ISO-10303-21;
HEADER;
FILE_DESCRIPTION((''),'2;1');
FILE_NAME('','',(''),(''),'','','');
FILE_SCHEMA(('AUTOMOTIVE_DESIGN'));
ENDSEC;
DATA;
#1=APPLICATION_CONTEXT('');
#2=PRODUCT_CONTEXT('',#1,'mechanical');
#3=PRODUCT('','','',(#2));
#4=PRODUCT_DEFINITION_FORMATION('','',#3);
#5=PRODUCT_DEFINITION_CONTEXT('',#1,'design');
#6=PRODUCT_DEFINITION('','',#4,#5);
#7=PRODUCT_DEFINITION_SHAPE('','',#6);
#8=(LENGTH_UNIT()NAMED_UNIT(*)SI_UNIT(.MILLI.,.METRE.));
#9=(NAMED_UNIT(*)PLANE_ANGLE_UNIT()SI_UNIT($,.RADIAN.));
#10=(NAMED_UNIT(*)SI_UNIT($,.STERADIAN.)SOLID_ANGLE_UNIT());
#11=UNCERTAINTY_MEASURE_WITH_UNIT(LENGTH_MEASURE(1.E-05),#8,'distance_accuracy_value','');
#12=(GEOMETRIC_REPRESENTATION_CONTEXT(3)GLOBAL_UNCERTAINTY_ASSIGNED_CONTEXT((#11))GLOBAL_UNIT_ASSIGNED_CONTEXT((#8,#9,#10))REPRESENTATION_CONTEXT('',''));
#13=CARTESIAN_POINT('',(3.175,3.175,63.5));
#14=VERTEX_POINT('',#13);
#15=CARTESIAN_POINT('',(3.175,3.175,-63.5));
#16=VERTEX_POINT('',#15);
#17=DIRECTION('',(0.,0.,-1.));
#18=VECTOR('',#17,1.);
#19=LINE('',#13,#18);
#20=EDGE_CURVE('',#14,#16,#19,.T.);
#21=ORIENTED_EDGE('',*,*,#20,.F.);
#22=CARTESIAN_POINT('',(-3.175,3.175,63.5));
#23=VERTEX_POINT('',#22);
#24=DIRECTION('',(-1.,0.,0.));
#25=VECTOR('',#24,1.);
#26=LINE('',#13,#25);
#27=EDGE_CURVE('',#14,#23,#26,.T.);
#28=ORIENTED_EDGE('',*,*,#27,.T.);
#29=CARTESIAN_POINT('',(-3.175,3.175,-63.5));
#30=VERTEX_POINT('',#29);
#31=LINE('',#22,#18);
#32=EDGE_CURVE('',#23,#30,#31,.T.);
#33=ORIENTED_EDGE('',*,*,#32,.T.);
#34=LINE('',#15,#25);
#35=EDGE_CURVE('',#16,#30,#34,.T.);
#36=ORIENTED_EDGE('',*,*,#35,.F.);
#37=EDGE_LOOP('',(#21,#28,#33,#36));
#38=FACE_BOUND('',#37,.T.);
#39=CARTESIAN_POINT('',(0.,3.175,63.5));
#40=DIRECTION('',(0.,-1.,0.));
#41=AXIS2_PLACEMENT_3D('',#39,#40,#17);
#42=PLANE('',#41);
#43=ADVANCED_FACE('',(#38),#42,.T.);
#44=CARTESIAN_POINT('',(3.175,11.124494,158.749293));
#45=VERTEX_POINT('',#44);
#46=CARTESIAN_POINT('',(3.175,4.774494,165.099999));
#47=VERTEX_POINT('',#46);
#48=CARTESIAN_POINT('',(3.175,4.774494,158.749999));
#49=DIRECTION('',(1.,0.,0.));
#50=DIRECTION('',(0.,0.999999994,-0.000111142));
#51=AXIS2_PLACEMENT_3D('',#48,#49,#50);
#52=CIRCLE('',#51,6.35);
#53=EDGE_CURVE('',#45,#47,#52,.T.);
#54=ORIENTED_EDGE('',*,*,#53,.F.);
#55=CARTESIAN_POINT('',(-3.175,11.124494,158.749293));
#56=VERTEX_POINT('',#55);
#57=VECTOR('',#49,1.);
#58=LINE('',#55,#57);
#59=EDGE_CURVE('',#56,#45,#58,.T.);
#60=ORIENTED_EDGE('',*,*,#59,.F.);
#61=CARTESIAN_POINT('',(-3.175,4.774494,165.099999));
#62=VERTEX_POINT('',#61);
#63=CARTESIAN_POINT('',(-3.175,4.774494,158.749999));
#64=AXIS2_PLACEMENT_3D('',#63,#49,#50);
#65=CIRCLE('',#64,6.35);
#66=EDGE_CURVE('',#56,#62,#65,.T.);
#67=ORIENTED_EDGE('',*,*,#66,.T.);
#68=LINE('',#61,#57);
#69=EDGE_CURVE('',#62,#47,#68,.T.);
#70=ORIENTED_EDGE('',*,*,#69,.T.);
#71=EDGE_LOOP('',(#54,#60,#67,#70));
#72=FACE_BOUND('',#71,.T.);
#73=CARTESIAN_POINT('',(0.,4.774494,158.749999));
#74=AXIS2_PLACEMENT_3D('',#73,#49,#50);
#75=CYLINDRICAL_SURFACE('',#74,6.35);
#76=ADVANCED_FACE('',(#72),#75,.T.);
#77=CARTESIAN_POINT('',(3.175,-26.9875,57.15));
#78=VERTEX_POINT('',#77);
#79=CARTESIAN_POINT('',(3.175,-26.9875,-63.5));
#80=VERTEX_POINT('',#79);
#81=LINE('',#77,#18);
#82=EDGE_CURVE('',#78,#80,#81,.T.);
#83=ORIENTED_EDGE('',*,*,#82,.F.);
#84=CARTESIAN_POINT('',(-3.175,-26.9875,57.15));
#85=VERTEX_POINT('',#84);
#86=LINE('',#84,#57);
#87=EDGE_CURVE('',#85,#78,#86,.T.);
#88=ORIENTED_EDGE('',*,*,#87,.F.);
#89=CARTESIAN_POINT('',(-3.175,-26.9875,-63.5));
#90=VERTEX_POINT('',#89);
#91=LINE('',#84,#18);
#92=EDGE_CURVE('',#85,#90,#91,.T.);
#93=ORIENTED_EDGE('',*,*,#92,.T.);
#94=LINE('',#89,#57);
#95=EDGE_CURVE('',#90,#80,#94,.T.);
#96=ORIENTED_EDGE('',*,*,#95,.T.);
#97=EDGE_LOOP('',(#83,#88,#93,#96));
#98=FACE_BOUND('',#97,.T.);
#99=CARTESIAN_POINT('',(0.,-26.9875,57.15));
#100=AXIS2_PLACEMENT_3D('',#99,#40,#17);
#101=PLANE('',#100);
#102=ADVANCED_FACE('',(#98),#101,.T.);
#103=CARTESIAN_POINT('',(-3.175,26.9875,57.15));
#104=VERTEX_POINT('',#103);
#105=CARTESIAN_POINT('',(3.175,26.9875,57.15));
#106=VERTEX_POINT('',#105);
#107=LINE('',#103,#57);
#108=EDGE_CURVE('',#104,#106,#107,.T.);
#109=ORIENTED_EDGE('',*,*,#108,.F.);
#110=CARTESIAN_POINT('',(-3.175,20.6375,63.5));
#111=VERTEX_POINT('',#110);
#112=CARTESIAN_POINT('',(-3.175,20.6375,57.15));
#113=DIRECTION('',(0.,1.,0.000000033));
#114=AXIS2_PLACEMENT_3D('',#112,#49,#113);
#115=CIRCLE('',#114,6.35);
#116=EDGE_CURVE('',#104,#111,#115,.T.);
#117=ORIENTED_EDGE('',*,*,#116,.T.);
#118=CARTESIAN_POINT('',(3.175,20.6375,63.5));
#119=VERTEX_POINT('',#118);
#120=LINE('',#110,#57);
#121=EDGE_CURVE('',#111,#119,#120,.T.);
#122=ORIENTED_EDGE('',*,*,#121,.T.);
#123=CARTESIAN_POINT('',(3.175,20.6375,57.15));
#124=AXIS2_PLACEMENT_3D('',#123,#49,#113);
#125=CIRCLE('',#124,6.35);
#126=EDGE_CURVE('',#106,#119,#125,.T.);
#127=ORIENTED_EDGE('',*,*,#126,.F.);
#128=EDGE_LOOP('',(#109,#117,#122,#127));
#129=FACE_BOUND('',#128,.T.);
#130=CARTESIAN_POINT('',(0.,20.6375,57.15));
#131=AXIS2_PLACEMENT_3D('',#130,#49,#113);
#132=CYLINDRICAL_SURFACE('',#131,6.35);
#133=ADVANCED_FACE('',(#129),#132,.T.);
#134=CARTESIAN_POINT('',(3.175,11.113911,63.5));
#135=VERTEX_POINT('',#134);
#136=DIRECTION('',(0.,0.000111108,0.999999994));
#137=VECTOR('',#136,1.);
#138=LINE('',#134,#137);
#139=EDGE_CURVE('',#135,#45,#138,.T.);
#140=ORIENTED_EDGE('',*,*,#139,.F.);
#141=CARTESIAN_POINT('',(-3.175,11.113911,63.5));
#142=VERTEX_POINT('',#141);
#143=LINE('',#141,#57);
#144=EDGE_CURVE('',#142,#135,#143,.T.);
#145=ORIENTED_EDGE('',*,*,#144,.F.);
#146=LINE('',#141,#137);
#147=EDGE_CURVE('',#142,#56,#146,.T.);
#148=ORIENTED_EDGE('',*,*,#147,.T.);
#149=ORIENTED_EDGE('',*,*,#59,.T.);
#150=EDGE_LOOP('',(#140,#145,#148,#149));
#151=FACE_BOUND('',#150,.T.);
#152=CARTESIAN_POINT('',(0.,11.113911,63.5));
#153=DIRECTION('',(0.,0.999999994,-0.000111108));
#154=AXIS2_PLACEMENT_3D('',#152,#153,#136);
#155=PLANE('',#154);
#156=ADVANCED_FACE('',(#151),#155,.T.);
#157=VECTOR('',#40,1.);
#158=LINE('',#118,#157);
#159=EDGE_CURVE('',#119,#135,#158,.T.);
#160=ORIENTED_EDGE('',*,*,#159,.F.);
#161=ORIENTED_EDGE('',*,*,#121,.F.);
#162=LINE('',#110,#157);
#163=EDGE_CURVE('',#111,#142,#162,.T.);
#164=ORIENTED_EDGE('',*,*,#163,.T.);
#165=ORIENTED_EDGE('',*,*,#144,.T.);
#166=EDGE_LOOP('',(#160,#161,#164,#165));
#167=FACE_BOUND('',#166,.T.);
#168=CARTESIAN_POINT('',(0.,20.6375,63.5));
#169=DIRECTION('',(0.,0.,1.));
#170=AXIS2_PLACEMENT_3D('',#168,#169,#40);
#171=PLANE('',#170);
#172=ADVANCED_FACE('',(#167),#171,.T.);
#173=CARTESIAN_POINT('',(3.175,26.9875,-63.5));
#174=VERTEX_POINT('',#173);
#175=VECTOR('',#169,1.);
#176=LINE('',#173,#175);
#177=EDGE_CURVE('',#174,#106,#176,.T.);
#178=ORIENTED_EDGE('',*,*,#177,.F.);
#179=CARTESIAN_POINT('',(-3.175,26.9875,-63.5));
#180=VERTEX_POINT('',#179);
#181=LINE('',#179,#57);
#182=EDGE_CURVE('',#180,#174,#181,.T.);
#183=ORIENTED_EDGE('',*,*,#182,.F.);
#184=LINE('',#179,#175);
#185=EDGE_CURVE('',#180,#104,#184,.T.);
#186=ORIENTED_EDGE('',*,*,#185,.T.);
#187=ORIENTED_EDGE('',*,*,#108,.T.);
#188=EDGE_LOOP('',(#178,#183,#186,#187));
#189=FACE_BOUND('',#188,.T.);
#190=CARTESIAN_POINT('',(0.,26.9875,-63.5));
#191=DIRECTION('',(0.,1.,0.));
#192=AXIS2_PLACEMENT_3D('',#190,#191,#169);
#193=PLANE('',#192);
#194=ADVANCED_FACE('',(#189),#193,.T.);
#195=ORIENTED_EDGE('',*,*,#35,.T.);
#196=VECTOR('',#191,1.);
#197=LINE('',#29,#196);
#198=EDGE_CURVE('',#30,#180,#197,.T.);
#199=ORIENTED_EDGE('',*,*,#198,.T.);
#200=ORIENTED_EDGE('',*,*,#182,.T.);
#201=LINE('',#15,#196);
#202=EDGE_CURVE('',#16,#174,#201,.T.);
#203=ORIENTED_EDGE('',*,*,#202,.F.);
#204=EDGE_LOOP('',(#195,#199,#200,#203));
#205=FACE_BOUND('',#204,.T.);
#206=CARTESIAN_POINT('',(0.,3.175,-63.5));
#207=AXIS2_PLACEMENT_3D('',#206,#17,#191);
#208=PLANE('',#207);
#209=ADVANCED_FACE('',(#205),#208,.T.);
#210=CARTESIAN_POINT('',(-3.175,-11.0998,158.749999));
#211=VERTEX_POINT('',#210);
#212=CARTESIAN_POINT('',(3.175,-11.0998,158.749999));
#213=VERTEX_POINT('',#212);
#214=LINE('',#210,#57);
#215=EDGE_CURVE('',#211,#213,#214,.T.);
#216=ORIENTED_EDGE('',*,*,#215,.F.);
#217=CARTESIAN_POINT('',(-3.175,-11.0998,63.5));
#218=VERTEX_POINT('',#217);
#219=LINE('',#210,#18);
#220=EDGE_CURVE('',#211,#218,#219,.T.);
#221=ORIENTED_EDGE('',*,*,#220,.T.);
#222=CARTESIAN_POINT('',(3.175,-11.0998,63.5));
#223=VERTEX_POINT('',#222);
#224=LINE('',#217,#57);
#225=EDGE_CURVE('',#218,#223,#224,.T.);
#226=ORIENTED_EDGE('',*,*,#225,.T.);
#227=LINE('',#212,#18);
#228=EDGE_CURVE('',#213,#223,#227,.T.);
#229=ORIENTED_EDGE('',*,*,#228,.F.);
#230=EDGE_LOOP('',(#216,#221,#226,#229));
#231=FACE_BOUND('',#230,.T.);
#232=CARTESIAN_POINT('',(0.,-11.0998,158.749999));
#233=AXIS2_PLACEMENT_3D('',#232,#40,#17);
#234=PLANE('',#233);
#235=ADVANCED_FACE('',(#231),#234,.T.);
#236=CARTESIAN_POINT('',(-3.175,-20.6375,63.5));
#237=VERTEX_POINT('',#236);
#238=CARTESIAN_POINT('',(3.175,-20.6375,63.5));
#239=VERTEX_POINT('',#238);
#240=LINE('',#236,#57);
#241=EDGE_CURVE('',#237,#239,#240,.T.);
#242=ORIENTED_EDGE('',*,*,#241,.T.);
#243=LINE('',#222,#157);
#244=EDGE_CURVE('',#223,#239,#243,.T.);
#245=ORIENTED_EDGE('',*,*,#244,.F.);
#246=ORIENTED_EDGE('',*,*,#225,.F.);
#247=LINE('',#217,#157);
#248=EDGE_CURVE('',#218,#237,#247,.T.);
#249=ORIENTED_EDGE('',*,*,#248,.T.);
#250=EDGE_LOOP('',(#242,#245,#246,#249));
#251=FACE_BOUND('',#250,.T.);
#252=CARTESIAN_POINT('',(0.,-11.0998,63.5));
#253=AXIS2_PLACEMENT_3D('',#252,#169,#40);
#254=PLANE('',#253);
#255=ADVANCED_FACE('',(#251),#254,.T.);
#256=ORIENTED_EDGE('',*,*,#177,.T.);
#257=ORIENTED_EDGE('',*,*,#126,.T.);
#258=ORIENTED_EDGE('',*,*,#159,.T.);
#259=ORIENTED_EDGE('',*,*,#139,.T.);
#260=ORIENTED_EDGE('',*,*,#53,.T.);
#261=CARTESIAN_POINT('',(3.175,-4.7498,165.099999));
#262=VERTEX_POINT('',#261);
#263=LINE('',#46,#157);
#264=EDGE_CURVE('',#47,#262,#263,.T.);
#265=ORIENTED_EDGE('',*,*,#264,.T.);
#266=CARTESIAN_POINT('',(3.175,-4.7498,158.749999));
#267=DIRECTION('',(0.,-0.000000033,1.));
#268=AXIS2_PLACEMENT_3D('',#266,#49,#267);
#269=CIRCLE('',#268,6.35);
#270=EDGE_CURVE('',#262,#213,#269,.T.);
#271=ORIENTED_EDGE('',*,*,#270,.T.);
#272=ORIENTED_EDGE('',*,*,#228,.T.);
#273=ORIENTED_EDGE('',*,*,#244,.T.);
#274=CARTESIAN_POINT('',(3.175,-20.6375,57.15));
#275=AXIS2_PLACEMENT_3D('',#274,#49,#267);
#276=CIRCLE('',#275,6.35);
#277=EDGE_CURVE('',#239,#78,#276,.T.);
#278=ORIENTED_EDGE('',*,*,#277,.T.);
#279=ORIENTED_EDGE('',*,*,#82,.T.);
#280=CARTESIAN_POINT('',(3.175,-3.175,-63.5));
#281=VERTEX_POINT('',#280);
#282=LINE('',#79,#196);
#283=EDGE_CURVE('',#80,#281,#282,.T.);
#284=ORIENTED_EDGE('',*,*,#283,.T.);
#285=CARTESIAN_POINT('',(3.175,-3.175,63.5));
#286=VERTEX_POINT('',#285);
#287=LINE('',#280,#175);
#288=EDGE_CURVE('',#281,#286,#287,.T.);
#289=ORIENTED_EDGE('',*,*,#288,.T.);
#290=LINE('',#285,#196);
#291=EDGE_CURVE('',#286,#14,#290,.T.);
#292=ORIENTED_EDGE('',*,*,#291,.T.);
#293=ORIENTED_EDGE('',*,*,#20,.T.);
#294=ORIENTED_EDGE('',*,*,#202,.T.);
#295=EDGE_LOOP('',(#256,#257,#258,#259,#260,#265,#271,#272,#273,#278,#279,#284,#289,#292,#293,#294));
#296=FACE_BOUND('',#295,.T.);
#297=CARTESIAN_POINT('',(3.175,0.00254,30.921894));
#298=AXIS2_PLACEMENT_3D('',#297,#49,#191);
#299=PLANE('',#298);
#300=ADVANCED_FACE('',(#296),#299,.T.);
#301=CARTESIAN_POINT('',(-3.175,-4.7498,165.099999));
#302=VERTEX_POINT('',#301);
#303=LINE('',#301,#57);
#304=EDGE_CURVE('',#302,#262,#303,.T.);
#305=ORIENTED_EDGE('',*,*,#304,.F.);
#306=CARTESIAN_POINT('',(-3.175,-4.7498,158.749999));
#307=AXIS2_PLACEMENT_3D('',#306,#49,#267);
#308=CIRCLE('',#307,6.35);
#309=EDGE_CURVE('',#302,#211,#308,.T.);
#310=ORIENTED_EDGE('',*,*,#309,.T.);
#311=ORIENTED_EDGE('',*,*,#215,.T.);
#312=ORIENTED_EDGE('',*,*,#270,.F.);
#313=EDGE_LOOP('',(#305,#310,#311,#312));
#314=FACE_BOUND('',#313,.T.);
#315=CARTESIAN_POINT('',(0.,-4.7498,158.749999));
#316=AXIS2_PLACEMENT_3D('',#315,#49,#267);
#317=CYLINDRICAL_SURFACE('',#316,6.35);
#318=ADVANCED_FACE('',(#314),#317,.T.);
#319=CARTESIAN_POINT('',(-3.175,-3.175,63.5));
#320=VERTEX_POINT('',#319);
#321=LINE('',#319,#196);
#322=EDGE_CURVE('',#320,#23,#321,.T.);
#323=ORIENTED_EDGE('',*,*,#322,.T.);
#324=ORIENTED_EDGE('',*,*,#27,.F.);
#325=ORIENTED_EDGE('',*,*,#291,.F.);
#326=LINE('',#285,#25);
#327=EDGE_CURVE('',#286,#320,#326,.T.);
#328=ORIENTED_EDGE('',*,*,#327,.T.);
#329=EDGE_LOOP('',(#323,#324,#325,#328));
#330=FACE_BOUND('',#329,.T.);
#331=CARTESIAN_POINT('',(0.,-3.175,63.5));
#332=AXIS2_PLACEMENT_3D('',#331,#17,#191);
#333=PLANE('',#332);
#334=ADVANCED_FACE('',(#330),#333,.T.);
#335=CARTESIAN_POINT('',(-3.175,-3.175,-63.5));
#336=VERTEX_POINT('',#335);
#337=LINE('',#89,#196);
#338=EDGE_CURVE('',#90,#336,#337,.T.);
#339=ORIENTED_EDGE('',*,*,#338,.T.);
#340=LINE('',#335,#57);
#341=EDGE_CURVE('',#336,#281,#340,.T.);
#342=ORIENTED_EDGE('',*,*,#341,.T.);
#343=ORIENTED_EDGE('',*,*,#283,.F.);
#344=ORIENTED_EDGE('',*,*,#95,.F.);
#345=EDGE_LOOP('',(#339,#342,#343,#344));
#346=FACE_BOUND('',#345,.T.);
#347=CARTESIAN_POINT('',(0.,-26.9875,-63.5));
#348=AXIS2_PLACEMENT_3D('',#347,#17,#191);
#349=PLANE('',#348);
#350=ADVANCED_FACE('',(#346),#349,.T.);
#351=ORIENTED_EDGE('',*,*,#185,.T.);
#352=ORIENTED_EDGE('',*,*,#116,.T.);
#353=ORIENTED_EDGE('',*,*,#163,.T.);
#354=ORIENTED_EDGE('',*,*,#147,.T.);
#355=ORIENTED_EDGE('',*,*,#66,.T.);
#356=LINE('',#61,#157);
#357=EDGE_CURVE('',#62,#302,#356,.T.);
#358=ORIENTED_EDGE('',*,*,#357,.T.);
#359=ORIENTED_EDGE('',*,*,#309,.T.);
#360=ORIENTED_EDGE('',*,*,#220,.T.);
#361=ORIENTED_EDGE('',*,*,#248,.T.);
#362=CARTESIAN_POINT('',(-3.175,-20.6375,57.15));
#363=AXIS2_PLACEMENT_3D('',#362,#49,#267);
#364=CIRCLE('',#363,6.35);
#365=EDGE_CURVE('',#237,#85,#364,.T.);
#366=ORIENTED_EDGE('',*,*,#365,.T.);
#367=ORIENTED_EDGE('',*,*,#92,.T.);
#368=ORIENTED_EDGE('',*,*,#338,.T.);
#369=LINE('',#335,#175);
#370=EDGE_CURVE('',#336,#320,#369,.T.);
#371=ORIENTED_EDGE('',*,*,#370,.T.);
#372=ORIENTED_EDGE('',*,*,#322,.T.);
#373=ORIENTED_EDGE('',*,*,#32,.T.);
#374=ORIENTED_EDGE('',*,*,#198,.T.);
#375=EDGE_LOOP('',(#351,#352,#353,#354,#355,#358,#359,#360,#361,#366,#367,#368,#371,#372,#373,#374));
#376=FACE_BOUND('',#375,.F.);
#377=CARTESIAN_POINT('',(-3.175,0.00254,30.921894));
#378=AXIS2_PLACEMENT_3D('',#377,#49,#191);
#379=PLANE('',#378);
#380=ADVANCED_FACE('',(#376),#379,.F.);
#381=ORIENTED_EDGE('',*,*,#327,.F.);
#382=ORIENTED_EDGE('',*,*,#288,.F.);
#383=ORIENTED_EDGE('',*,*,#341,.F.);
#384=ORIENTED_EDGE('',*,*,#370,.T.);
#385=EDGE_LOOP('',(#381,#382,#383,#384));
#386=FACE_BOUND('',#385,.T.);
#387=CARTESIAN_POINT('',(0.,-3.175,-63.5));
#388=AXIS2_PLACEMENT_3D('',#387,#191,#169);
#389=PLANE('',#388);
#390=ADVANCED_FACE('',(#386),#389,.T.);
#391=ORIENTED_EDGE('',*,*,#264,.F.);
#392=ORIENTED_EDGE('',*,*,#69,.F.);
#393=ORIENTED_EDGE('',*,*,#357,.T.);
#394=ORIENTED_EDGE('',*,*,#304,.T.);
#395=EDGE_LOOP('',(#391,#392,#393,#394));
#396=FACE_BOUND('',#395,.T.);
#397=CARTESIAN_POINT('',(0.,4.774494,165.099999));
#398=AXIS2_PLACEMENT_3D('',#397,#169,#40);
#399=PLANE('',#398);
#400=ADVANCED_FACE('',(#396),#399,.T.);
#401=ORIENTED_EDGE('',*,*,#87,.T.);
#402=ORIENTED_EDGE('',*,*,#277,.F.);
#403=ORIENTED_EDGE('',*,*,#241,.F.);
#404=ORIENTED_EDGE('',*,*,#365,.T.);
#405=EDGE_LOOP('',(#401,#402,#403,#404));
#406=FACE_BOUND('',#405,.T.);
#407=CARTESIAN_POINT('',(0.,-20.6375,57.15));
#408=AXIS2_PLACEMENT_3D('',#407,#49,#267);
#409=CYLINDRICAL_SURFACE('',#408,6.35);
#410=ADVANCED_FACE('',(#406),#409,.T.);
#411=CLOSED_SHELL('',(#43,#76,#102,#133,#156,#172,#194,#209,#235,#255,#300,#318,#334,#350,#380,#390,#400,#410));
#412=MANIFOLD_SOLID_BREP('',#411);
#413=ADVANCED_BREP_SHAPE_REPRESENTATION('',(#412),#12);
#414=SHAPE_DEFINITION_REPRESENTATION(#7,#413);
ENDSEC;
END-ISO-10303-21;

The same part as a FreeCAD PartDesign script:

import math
import FreeCAD as App
import Part
import Sketcher
Q = App.Units.Quantity

doc = App.newDocument("Part")
body = doc.addObject("PartDesign::Body", "Body")

sketch1 = doc.addObject("Sketcher::SketchObject", "Sketch")
body.addObject(sketch1)
sketch1.AttachmentSupport = (doc.YZ_Plane, [""])
sketch1.MapMode = "FlatFace"
sketch1.addGeometry(Part.LineSegment(App.Vector(3.175, -63.5, 0), App.Vector(26.9875, -63.5, 0)), False)
sketch1.addGeometry(Part.LineSegment(App.Vector(26.9875, -63.5, 0), App.Vector(26.9875, 57.15, 0)), False)
sketch1.addGeometry(Part.ArcOfCircle(Part.Circle(App.Vector(20.6375, 57.15, 0), App.Vector(0, 0, 1), 6.35), math.radians(0.000002), math.radians(89.999998)), False)
sketch1.addGeometry(Part.LineSegment(App.Vector(20.6375, 63.5, 0), App.Vector(11.113911, 63.5, 0)), False)
sketch1.addGeometry(Part.LineSegment(App.Vector(11.113911, 63.5, 0), App.Vector(11.124494, 158.749293, 0)), False)
sketch1.addGeometry(Part.ArcOfCircle(Part.Circle(App.Vector(4.774494, 158.749999, 0), App.Vector(0, 0, 1), 6.35), math.radians(-0.006368), math.radians(89.999998)), False)
sketch1.addGeometry(Part.LineSegment(App.Vector(4.774494, 165.099999, 0), App.Vector(-4.7498, 165.099999, 0)), False)
sketch1.addGeometry(Part.ArcOfCircle(Part.Circle(App.Vector(-4.7498, 158.749999, 0), App.Vector(0, 0, 1), 6.35), math.radians(90.000002), math.radians(179.999998)), False)
sketch1.addGeometry(Part.LineSegment(App.Vector(-11.0998, 158.749999, 0), App.Vector(-11.0998, 63.5, 0)), False)
sketch1.addGeometry(Part.LineSegment(App.Vector(-11.0998, 63.5, 0), App.Vector(-20.6375, 63.5, 0)), False)
sketch1.addGeometry(Part.ArcOfCircle(Part.Circle(App.Vector(-20.6375, 57.15, 0), App.Vector(0, 0, 1), 6.35), math.radians(90.000002), math.radians(179.999998)), False)
sketch1.addGeometry(Part.LineSegment(App.Vector(-26.9875, 57.15, 0), App.Vector(-26.9875, -63.5, 0)), False)
sketch1.addGeometry(Part.LineSegment(App.Vector(-26.9875, -63.5, 0), App.Vector(-3.175, -63.5, 0)), False)
sketch1.addGeometry(Part.LineSegment(App.Vector(-3.175, -63.5, 0), App.Vector(-3.175, 63.5, 0)), False)
sketch1.addGeometry(Part.LineSegment(App.Vector(-3.175, 63.5, 0), App.Vector(3.175, 63.5, 0)), False)
sketch1.addGeometry(Part.LineSegment(App.Vector(3.175, 63.5, 0), App.Vector(3.175, -63.5, 0)), False)
sketch1.addConstraint(Sketcher.Constraint("Coincident", 0, 2, 1, 1))
sketch1.addConstraint(Sketcher.Constraint("Tangent", 1, 2, 2, 1))
sketch1.addConstraint(Sketcher.Constraint("Tangent", 2, 2, 3, 1))
sketch1.addConstraint(Sketcher.Constraint("Coincident", 3, 2, 4, 1))
sketch1.addConstraint(Sketcher.Constraint("Tangent", 4, 2, 5, 1))
sketch1.addConstraint(Sketcher.Constraint("Tangent", 5, 2, 6, 1))
sketch1.addConstraint(Sketcher.Constraint("Tangent", 6, 2, 7, 1))
sketch1.addConstraint(Sketcher.Constraint("Tangent", 7, 2, 8, 1))
sketch1.addConstraint(Sketcher.Constraint("Coincident", 8, 2, 9, 1))
sketch1.addConstraint(Sketcher.Constraint("Tangent", 9, 2, 10, 1))
sketch1.addConstraint(Sketcher.Constraint("Tangent", 10, 2, 11, 1))
sketch1.addConstraint(Sketcher.Constraint("Coincident", 11, 2, 12, 1))
sketch1.addConstraint(Sketcher.Constraint("Coincident", 12, 2, 13, 1))
sketch1.addConstraint(Sketcher.Constraint("Coincident", 13, 2, 14, 1))
sketch1.addConstraint(Sketcher.Constraint("Coincident", 14, 2, 15, 1))
sketch1.addConstraint(Sketcher.Constraint("Coincident", 15, 2, 0, 1))
sketch1.addConstraint(Sketcher.Constraint("Horizontal", 0))
sketch1.addConstraint(Sketcher.Constraint("Vertical", 1))
sketch1.addConstraint(Sketcher.Constraint("Horizontal", 3))
sketch1.addConstraint(Sketcher.Constraint("Horizontal", 6))
sketch1.addConstraint(Sketcher.Constraint("Vertical", 8))
sketch1.addConstraint(Sketcher.Constraint("Horizontal", 9))
sketch1.addConstraint(Sketcher.Constraint("Vertical", 11))
sketch1.addConstraint(Sketcher.Constraint("Horizontal", 12))
sketch1.addConstraint(Sketcher.Constraint("Vertical", 13))
sketch1.addConstraint(Sketcher.Constraint("Horizontal", 14))
sketch1.addConstraint(Sketcher.Constraint("Vertical", 15))
sketch1.addConstraint(Sketcher.Constraint("Equal", 2, 5))
sketch1.addConstraint(Sketcher.Constraint("Equal", 5, 7))
sketch1.addConstraint(Sketcher.Constraint("Equal", 7, 10))
sketch1.addConstraint(Sketcher.Constraint("Symmetric", 12, 2, 14, 2, -1, 1))
sketch1.addConstraint(Sketcher.Constraint("Symmetric", 2, 3, 10, 3, -2))
sketch1.addConstraint(Sketcher.Constraint("Horizontal", 0, 2, 11, 2))
sketch1.addConstraint(Sketcher.Constraint("Horizontal", 9, 2, 13, 2))
sketch1.addConstraint(Sketcher.Constraint("DistanceY", 13, 1, 13, 2, Q("5 in")))
sketch1.addConstraint(Sketcher.Constraint("Radius", 2, Q("0.25 in")))
sketch1.addConstraint(Sketcher.Constraint("DistanceY", 2, 3, 5, 3, Q("4 in")))
sketch1.addConstraint(Sketcher.Constraint("DistanceX", 14, 1, 14, 2, Q("0.25 in")))
sketch1.addConstraint(Sketcher.Constraint("DistanceX", 0, 1, 0, 2, Q("0.9375 in")))
sketch1.addConstraint(Sketcher.Constraint("DistanceX", 9, 2, 9, 1, Q("0.3755 in")))
sketch1.addConstraint(Sketcher.Constraint("DistanceX", 3, 2, 3, 1, 9.523589))
sketch1.addConstraint(Sketcher.Constraint("DistanceX", 6, 2, 6, 1, 9.524294))
pad1 = doc.addObject("PartDesign::Pad", "Pad")
body.addObject(pad1)
pad1.Profile = sketch1
pad1.Length = Q("0.25 in")
pad1.Midplane = True

doc.recompute()
